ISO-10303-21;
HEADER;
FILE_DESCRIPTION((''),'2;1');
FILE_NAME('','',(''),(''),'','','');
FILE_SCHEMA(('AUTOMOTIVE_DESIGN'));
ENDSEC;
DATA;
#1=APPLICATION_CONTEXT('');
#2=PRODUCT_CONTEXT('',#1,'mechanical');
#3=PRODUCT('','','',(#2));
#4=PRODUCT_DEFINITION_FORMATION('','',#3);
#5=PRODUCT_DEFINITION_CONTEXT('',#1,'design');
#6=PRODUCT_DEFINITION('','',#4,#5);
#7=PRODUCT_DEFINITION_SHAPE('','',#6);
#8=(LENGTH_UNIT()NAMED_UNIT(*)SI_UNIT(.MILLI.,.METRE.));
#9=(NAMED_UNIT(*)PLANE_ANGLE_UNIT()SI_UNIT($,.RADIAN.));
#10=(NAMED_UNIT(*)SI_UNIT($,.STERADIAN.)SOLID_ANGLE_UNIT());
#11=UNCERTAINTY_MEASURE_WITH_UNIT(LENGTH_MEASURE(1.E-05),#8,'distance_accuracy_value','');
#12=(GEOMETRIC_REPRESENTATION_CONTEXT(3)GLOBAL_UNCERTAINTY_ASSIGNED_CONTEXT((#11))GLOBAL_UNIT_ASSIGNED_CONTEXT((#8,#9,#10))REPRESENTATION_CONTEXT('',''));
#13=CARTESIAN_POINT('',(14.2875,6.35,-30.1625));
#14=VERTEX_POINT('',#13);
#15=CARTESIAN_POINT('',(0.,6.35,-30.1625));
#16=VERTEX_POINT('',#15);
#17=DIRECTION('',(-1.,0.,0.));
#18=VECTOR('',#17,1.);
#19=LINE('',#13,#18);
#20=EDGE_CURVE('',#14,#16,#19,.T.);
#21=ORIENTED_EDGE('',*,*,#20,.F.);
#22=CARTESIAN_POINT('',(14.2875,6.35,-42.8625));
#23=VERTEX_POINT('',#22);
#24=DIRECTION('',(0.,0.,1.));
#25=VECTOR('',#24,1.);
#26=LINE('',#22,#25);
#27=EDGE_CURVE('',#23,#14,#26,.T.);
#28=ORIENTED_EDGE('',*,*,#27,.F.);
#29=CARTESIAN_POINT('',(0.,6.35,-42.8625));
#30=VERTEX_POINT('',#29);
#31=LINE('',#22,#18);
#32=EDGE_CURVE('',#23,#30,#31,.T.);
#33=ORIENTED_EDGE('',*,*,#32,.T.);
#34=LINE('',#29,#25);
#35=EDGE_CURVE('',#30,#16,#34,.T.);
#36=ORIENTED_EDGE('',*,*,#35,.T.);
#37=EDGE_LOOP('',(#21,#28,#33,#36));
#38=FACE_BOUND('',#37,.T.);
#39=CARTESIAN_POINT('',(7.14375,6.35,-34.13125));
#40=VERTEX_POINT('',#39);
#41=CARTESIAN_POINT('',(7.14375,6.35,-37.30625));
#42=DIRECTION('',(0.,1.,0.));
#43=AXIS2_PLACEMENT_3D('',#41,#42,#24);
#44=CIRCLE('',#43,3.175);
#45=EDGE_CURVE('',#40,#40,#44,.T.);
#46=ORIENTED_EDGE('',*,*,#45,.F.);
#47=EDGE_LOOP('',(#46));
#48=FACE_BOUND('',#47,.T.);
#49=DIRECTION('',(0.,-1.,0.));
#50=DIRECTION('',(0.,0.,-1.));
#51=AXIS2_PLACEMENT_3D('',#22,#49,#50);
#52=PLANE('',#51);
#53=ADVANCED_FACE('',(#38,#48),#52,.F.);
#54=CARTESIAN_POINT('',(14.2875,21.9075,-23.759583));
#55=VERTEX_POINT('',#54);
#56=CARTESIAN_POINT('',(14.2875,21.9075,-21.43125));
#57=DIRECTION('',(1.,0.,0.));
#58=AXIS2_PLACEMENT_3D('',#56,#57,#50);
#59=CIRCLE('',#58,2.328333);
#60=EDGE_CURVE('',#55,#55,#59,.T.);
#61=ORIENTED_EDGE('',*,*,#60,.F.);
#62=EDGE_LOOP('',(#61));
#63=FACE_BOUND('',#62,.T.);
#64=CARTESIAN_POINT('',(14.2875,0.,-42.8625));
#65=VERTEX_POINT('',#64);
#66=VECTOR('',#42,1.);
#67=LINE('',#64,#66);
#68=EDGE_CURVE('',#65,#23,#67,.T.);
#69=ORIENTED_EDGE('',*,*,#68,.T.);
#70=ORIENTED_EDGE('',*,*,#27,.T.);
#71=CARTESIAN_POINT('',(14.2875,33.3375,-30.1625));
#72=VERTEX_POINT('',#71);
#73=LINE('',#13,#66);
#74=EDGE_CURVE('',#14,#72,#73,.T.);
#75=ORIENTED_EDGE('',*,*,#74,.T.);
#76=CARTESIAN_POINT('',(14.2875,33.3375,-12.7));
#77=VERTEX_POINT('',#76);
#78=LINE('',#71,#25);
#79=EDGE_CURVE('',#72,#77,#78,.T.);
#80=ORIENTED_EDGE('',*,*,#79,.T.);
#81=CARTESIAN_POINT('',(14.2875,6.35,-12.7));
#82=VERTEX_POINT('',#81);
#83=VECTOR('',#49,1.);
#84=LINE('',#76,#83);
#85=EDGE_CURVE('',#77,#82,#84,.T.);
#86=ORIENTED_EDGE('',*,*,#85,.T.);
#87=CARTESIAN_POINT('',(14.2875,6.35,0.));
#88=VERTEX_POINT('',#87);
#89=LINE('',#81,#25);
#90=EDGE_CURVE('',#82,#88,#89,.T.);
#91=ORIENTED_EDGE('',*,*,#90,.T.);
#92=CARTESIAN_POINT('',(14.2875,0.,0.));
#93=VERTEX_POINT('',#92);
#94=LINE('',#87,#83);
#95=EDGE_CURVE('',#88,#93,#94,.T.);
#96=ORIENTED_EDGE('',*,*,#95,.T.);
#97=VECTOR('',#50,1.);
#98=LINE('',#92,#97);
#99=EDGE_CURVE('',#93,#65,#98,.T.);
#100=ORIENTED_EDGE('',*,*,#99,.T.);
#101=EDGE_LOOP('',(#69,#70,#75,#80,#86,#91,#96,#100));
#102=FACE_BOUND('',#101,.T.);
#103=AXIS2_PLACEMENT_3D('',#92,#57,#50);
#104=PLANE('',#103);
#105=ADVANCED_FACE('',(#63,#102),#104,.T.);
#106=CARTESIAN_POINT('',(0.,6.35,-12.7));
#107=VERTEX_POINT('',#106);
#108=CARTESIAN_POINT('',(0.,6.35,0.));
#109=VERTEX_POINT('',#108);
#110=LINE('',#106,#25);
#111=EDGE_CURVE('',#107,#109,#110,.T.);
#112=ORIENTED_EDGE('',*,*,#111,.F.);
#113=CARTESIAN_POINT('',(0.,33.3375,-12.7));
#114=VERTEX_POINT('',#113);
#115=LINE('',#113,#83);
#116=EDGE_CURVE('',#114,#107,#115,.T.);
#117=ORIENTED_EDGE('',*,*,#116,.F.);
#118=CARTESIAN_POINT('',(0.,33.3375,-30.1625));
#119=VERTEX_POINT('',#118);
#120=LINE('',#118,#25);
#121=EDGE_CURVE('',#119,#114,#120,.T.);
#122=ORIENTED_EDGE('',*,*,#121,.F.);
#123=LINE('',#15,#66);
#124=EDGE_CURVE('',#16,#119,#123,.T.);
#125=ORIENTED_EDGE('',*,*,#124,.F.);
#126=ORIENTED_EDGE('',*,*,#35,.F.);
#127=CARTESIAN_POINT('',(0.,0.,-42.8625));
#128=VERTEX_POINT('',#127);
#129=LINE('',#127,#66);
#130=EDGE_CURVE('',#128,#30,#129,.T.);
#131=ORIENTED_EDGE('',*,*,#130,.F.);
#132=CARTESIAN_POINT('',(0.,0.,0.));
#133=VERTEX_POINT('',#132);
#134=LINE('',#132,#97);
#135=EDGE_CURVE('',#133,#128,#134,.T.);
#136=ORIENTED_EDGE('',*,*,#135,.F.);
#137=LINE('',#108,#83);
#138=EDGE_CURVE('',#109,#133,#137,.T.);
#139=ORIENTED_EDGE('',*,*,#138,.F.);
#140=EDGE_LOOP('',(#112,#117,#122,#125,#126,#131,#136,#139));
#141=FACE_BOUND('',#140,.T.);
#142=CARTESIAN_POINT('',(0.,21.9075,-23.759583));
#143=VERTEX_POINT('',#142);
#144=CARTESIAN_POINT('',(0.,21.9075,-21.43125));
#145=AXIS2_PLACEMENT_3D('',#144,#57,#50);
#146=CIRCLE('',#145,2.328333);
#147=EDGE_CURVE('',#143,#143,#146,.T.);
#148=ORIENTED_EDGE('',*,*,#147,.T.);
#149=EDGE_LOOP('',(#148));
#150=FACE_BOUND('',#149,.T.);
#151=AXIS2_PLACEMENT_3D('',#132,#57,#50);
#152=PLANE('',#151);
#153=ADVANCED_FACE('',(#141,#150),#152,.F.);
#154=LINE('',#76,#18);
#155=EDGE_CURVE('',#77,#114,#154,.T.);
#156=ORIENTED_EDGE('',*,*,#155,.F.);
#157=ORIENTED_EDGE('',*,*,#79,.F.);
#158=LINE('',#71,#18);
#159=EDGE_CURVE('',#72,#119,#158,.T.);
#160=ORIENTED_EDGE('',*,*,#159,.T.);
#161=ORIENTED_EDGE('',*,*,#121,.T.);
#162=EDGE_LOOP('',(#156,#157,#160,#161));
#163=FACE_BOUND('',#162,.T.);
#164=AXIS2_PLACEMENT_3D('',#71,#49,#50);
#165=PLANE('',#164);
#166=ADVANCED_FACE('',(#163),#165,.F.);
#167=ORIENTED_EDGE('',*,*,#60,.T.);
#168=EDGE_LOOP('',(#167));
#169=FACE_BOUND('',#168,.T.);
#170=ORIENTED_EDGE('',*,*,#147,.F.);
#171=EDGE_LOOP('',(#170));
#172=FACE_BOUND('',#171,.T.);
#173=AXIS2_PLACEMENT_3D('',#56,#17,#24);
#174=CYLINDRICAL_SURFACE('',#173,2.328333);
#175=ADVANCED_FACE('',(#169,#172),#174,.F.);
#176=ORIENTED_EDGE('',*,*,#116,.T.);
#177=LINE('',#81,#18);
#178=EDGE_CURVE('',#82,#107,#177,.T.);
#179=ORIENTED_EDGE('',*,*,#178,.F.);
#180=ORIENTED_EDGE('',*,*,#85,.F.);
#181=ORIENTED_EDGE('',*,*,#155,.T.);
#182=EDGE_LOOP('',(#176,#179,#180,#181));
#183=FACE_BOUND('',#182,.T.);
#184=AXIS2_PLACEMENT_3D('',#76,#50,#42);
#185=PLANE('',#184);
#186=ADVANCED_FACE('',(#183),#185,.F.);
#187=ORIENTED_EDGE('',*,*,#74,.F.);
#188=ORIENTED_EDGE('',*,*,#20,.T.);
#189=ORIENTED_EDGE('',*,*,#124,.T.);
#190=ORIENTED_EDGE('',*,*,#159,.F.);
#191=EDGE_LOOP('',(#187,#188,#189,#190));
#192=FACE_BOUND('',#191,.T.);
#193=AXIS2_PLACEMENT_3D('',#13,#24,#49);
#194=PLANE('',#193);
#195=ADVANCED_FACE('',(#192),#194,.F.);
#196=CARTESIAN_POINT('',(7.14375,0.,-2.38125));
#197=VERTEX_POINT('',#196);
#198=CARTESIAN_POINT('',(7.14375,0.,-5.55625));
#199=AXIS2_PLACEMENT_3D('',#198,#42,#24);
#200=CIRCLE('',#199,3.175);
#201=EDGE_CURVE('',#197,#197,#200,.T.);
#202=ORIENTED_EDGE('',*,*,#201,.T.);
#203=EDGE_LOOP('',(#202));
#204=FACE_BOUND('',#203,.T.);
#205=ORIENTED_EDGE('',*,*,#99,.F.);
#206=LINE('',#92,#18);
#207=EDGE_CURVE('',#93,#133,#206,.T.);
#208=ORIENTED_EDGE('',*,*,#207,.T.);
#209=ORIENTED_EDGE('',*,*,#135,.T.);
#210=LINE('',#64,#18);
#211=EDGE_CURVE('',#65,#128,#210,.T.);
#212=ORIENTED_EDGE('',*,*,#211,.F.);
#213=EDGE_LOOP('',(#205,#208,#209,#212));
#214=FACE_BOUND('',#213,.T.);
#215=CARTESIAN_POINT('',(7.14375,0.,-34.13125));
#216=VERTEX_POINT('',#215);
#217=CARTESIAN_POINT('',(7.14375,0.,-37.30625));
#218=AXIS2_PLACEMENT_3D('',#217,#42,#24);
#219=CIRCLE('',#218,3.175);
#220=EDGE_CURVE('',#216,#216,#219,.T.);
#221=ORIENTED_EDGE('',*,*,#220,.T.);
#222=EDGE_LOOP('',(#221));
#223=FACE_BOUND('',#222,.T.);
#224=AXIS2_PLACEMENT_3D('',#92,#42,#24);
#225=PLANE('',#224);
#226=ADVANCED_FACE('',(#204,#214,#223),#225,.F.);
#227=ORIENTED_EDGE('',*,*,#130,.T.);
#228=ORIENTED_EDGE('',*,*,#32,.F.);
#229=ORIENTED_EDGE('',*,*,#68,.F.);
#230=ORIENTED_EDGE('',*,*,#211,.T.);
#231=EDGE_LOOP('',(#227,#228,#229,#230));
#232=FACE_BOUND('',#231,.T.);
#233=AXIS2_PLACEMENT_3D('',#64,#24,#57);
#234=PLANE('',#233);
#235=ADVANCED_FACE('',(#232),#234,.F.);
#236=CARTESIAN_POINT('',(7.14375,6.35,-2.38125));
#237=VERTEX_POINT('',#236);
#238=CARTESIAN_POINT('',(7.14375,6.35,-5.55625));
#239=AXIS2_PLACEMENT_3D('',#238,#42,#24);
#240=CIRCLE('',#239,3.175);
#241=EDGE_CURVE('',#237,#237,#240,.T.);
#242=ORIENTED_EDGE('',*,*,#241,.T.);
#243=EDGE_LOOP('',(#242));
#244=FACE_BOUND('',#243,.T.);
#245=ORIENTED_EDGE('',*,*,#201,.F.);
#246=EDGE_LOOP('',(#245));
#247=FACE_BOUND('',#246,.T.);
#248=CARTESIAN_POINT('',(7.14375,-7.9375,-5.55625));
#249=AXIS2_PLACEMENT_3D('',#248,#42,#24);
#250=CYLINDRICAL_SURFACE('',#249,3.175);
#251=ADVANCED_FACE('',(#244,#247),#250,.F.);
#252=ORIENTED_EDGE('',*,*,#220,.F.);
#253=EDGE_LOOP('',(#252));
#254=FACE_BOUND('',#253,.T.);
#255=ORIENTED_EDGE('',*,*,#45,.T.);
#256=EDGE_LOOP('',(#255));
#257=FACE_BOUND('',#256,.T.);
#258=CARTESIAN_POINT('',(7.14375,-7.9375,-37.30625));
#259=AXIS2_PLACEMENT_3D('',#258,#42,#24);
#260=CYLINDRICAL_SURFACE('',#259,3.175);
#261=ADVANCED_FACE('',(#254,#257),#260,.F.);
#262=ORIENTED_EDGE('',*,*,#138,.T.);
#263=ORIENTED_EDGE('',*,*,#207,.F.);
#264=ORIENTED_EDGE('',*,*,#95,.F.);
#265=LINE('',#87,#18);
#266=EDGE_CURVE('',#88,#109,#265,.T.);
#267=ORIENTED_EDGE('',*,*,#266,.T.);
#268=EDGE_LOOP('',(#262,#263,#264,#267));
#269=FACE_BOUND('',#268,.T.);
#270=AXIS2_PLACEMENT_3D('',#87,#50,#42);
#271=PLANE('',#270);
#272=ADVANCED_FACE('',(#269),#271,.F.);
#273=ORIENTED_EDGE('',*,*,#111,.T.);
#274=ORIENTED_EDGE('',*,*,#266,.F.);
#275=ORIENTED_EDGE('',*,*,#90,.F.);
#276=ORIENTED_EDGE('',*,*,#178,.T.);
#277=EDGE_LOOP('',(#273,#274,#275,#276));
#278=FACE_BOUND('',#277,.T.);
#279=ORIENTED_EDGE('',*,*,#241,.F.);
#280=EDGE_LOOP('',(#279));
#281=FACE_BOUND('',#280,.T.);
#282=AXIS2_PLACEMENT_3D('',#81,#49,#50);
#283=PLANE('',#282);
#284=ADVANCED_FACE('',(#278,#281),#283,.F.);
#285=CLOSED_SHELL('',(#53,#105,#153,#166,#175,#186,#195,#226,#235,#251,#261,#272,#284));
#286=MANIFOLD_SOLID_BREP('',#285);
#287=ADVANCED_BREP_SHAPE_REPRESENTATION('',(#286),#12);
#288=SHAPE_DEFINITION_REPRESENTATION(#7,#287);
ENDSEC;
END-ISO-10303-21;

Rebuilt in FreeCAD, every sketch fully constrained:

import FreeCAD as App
import Part
import Sketcher
Q = App.Units.Quantity


def add_polygon(sketch, points):
    """Adds a closed chain of lines whose ends are joined by coincident constraints."""
    first, n = sketch.GeometryCount, len(points)
    for a, b in zip(points, points[1:] + points[:1]):
        sketch.addGeometry(Part.LineSegment(App.Vector(*a, 0), App.Vector(*b, 0)), False)
    for i in range(n):
        sketch.addConstraint(Sketcher.Constraint("Coincident", first + i, 2, first + (i + 1) % n, 1))

doc = App.newDocument("Part")
body = doc.addObject("PartDesign::Body", "Body")

sketch1 = doc.addObject("Sketcher::SketchObject", "Sketch")
body.addObject(sketch1)
sketch1.AttachmentSupport = (doc.YZ_Plane, [""])
sketch1.MapMode = "FlatFace"
add_polygon(sketch1, [(0, 0), (0, -42.9), (6.3, -42.9), (6.3, -30.2), (33.3, -30.2), (33.3, -12.7), (6.3, -12.7), (6.3, 0)])
sketch1.addGeometry(Part.Circle(App.Vector(21.9, -21.4, 0), App.Vector(0, 0, 1), 2.3), False)
sketch1.addConstraint([
    Sketcher.Constraint("Vertical", 0),
    Sketcher.Constraint("Horizontal", 1),
    Sketcher.Constraint("Vertical", 2),
    Sketcher.Constraint("Horizontal", 3),
    Sketcher.Constraint("Vertical", 4),
    Sketcher.Constraint("Horizontal", 5),
    Sketcher.Constraint("Vertical", 6),
    Sketcher.Constraint("Horizontal", 7),
    Sketcher.Constraint("Coincident", 7, 2, -1, 1),
    Sketcher.Constraint("Vertical", 2, 2, 5, 2),
    Sketcher.Constraint("Equal", 2, 6),
    Sketcher.Constraint("DistanceY", 2, 1, 2, 2, Q("0.5 in")),
    Sketcher.Constraint("DistanceX", 1, 1, 1, 2, Q("0.25 in")),
    Sketcher.Constraint("DistanceX", 3, 1, 3, 2, Q("1.0625 in")),
    Sketcher.Constraint("DistanceY", 0, 2, 0, 1, Q("1.6875 in")),
    Sketcher.Constraint("DistanceX", 8, 3, 3, 2, Q("0.45 in")),
    Sketcher.Constraint("DistanceY", 8, 3, -1, 1, Q("0.84375 in")),
    Sketcher.Constraint("Diameter", 8, Q("4.656667 mm")),
])
pad1 = doc.addObject("PartDesign::Pad", "Pad")
body.addObject(pad1)
pad1.Profile = sketch1
pad1.Length = Q("0.5625 in")

sketch2 = doc.addObject("Sketcher::SketchObject", "Sketch001")
body.addObject(sketch2)
sketch2.AttachmentSupport = (doc.XZ_Plane, [""])
sketch2.MapMode = "FlatFace"
sketch2.AttachmentOffset = App.Placement(App.Vector(0, 0, -0.25 * 25.4), App.Rotation())
sketch2.addGeometry([
    Part.Circle(App.Vector(7.1, -5.6, 0), App.Vector(0, 0, 1), 3.2),
    Part.Circle(App.Vector(7.1, -37.3, 0), App.Vector(0, 0, 1), 3.2),
], False)
sketch2.addConstraint([
    Sketcher.Constraint("Equal", 0, 1),
    Sketcher.Constraint("Vertical", 0, 3, 1, 3),
    Sketcher.Constraint("Diameter", 0, Q("0.25 in")),
    Sketcher.Constraint("DistanceY", 1, 3, 0, 3, Q("1.25 in")),
    Sketcher.Constraint("DistanceX", -1, 1, 0, 3, Q("0.28125 in")),
    Sketcher.Constraint("DistanceY", 0, 3, -1, 1, Q("0.21875 in")),
])
pocket1 = doc.addObject("PartDesign::Pocket", "Pocket")
body.addObject(pocket1)
pocket1.Profile = sketch2
pocket1.Length = Q("0.5625 in")
pocket1.Reversed = True

doc.recompute()
